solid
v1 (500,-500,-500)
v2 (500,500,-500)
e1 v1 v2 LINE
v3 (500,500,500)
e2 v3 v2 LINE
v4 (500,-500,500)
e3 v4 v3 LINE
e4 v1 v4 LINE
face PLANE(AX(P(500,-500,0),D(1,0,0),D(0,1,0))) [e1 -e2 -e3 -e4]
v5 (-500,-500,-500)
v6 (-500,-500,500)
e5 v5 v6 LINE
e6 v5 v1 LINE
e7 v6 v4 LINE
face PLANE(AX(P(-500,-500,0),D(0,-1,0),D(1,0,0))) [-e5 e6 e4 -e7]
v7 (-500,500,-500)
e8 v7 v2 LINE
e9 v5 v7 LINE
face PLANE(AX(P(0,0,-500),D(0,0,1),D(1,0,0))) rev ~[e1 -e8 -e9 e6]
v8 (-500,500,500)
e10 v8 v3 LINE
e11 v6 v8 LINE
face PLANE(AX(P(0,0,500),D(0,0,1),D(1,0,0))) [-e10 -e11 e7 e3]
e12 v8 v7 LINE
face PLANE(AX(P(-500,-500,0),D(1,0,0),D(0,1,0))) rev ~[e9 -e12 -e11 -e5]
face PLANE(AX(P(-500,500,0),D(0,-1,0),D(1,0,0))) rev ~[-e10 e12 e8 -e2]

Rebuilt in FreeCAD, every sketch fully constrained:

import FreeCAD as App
import Part
import Sketcher
Q = App.Units.Quantity

doc = App.newDocument("Part")
params = doc.addObject("Spreadsheet::Sheet", "Params")
for row, (alias, value) in enumerate([
    ("sketch1_width", "1000 mm"),
    ("pad1_length", "1000 mm"),
], start=1):
    params.set(f"A{row}", alias)
    params.set(f"B{row}", "=" + value)
    params.setAlias(f"B{row}", alias)

body = doc.addObject("PartDesign::Body", "Body")

# Sketch on XY plane
sketch1 = body.newObject("Sketcher::SketchObject", "Sketch")
sketch1.AttachmentSupport = (doc.getObject("XY_Plane"), [""])
sketch1.MapMode = "FlatFace"
sketch1.addGeometry([
    Part.LineSegment(App.Vector(-500, 500, 0), App.Vector(-500, -500, 0)),
    Part.LineSegment(App.Vector(-500, -500, 0), App.Vector(500, -500, 0)),
    Part.LineSegment(App.Vector(500, -500, 0), App.Vector(500, 500, 0)),
    Part.LineSegment(App.Vector(500, 500, 0), App.Vector(-500, 500, 0)),
], False)
sketch1.addConstraint([
    Sketcher.Constraint("Coincident", 0, 2, 1, 1),
    Sketcher.Constraint("Coincident", 1, 2, 2, 1),
    Sketcher.Constraint("Coincident", 2, 2, 3, 1),
    Sketcher.Constraint("Coincident", 3, 2, 0, 1),
    Sketcher.Constraint("Vertical", 0),
    Sketcher.Constraint("Horizontal", 1),
    Sketcher.Constraint("Vertical", 2),
    Sketcher.Constraint("Horizontal", 3),
    Sketcher.Constraint("Symmetric", 0, 2, 2, 2, -1, 1),
    Sketcher.Constraint("Equal", 3, 0),
    Sketcher.Constraint("DistanceX", 1, 1, 1, 2, Q("1000 mm")),
])
sketch1.setExpression("Constraints[10]", "Params.sketch1_width")
pad1 = body.newObject("PartDesign::Pad", "Pad")
pad1.Profile = sketch1
pad1.setExpression("Length", "Params.pad1_length")
pad1.Midplane = True

doc.recompute()
